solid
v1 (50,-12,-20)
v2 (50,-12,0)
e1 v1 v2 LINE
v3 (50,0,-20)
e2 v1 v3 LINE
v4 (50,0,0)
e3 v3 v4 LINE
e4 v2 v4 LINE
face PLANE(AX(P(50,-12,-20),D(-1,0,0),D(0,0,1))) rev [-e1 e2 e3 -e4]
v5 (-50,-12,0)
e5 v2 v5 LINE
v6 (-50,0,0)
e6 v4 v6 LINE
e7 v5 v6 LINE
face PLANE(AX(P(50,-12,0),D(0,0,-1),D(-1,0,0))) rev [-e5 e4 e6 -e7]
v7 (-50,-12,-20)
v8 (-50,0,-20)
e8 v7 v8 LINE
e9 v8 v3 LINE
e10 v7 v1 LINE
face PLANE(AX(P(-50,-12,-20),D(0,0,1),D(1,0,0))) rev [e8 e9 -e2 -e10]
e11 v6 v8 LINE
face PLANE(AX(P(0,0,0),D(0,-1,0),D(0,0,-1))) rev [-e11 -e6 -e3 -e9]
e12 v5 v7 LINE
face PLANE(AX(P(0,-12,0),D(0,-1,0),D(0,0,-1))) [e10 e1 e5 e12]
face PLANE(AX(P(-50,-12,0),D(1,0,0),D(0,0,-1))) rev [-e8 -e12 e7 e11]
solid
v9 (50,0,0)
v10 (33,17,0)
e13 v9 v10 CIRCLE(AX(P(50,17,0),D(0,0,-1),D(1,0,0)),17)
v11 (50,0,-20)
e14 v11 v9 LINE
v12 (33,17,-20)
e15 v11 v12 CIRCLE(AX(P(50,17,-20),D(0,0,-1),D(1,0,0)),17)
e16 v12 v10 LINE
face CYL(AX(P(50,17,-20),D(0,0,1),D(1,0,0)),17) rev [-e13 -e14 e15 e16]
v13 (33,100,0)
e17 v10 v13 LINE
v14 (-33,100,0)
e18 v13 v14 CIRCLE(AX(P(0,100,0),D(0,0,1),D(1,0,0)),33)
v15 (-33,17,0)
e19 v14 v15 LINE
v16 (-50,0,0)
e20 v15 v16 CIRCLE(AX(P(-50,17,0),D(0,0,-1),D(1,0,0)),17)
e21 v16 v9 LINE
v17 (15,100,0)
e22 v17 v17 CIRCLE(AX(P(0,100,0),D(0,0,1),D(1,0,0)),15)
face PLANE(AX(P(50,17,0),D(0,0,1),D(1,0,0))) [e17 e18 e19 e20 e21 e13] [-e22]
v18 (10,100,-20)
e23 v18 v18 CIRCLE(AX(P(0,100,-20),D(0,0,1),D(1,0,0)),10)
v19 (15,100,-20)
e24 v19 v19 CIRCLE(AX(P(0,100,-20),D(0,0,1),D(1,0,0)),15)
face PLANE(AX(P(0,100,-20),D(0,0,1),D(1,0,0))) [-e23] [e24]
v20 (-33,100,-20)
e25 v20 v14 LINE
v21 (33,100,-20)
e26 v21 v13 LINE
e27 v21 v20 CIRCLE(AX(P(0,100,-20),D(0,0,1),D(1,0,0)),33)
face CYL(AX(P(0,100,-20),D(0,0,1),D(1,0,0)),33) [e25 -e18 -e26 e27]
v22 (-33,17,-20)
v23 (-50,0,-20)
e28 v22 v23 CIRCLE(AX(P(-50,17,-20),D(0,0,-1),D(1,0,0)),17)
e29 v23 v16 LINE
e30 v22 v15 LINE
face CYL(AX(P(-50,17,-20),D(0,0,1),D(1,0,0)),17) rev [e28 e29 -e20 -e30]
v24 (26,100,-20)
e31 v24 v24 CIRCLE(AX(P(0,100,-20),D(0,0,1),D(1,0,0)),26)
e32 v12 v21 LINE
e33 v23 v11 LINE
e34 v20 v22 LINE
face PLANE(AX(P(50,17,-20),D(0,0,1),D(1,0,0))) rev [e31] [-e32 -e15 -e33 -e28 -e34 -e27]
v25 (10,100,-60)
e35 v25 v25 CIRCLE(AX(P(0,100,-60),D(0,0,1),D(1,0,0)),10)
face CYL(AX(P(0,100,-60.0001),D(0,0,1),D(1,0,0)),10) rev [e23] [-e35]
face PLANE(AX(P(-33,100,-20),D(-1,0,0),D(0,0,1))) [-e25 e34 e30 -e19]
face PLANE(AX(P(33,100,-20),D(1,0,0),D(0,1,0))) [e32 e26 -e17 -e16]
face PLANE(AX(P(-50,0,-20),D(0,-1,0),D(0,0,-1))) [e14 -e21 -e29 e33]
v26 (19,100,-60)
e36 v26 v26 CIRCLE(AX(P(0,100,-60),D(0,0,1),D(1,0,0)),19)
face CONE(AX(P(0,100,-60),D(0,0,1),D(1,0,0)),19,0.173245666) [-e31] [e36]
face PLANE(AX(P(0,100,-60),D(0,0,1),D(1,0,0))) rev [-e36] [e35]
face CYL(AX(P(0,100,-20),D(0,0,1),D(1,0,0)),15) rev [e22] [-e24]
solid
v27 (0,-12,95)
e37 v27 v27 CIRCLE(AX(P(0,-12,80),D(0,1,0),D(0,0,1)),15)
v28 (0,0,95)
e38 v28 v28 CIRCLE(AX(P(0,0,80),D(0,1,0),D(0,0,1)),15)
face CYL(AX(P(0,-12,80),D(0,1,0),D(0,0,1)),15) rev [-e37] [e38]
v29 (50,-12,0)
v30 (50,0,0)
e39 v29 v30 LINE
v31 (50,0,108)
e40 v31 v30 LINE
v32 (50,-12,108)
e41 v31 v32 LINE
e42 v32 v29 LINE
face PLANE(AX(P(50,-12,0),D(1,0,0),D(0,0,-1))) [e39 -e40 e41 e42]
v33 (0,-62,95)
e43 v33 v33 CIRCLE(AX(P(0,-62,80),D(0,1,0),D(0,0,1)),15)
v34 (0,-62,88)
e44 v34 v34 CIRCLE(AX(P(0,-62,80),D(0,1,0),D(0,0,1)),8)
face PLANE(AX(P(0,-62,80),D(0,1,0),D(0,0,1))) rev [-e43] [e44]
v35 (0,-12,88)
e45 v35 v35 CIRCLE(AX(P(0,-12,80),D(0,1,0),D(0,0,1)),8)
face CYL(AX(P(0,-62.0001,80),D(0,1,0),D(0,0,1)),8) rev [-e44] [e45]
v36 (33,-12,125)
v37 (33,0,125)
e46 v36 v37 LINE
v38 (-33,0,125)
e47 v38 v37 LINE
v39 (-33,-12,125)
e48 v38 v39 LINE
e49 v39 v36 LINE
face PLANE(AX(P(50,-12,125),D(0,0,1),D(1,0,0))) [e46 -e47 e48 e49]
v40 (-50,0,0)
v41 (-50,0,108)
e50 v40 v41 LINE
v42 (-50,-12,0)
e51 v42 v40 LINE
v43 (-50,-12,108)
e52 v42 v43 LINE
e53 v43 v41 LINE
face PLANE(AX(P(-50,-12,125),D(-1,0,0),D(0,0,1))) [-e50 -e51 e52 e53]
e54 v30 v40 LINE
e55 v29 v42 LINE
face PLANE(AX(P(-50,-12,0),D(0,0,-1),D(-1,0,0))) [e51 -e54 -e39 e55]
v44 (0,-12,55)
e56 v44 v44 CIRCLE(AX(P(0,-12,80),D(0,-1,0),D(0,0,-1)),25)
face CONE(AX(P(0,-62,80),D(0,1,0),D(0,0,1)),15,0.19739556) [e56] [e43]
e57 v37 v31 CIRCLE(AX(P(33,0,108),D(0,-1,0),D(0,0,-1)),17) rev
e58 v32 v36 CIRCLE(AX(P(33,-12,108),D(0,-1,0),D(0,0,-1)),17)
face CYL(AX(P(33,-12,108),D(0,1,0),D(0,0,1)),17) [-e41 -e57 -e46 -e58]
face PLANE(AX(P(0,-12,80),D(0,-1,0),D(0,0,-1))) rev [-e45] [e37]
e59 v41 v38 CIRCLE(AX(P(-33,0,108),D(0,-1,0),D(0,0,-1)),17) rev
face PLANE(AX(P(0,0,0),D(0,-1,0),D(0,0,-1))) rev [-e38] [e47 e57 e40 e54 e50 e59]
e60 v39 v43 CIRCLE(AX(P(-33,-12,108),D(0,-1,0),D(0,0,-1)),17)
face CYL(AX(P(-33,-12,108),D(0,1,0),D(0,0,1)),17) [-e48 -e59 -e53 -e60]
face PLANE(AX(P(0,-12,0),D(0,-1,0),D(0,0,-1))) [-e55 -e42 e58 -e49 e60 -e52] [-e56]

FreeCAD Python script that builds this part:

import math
import FreeCAD as App
import Part
import Sketcher


def edges_at(feature, points):
    """Names of the edges that pass closest to the given points."""
    edges = feature.Shape.Edges
    near = lambda p: min(range(len(edges)), key=lambda i: edges[i].distToShape(Part.Vertex(*p))[0])
    return sorted({f"Edge{near(p) + 1}" for p in points})

doc = App.newDocument("Part")
body = doc.addObject("PartDesign::Body", "Body")

sketch1 = doc.addObject("Sketcher::SketchObject", "Sketch")
body.addObject(sketch1)
sketch1.AttachmentSupport = (doc.XY_Plane, [""])
sketch1.MapMode = "FlatFace"
sketch1.addGeometry([
    Part.LineSegment(App.Vector(-50, 0, 0), App.Vector(50, 0, 0)),
    Part.ArcOfCircle(Part.Circle(App.Vector(50, 17, 0), App.Vector(0, 0, 1), 17), math.radians(-180), math.radians(-90)),
    Part.LineSegment(App.Vector(33, 17, 0), App.Vector(33, 100, 0)),
    Part.ArcOfCircle(Part.Circle(App.Vector(0, 100, 0), App.Vector(0, 0, 1), 33), math.radians(0), math.radians(180)),
    Part.LineSegment(App.Vector(-33, 100, 0), App.Vector(-33, 17, 0)),
    Part.ArcOfCircle(Part.Circle(App.Vector(-50, 17, 0), App.Vector(0, 0, 1), 17), math.radians(-90), math.radians(0)),
    Part.Circle(App.Vector(0, 100, 0), App.Vector(0, 0, 1), 15),
], False)
sketch1.addConstraint([
    Sketcher.Constraint("Tangent", 0, 2, 1, 2),
    Sketcher.Constraint("Tangent", 1, 1, 2, 1),
    Sketcher.Constraint("Tangent", 2, 2, 3, 1),
    Sketcher.Constraint("Tangent", 3, 2, 4, 1),
    Sketcher.Constraint("Tangent", 4, 2, 5, 2),
    Sketcher.Constraint("Tangent", 5, 1, 0, 1),
    Sketcher.Constraint("Horizontal", 0),
    Sketcher.Constraint("Vertical", 2),
    Sketcher.Constraint("Vertical", 4),
    Sketcher.Constraint("Coincident", 6, 3, 3, 3),
    Sketcher.Constraint("Equal", 1, 5),
    Sketcher.Constraint("Symmetric", 0, 2, 5, 1, -1, 1),
    Sketcher.Constraint("Diameter", 6, 30.0),
    Sketcher.Constraint("Radius", 1, 17.0),
    Sketcher.Constraint("Radius", 3, 33.0),
    Sketcher.Constraint("DistanceY", 2, 1, 2, 2, 83.0),
])
pad1 = doc.addObject("PartDesign::Pad", "Pad")
body.addObject(pad1)
pad1.Profile = sketch1
pad1.Length = 20
pad1.Reversed = True

sketch2 = doc.addObject("Sketcher::SketchObject", "Sketch001")
body.addObject(sketch2)
sketch2.AttachmentSupport = (doc.XY_Plane, [""])
sketch2.MapMode = "FlatFace"
sketch2.AttachmentOffset = App.Placement(App.Vector(0, 0, -60), App.Rotation())
sketch2.addGeometry(Part.Circle(App.Vector(0, 100, 0), App.Vector(0, 0, 1), 19), False)
sketch2.addConstraint([
    Sketcher.Constraint("PointOnObject", 0, 3, -2),
    Sketcher.Constraint("Diameter", 0, 38.0),
    Sketcher.Constraint("DistanceY", -1, 1, 0, 3, 100.0),
])

sketch3 = doc.addObject("Sketcher::SketchObject", "Sketch002")
body.addObject(sketch3)
sketch3.AttachmentSupport = (doc.XY_Plane, [""])
sketch3.MapMode = "FlatFace"
sketch3.AttachmentOffset = App.Placement(App.Vector(0, 0, -20), App.Rotation())
sketch3.addGeometry(Part.Circle(App.Vector(0, 100, 0), App.Vector(0, 0, 1), 26), False)
sketch3.addConstraint([
    Sketcher.Constraint("PointOnObject", 0, 3, -2),
    Sketcher.Constraint("Diameter", 0, 52.0),
    Sketcher.Constraint("DistanceY", -1, 1, 0, 3, 100.0),
])

additiveloft = doc.addObject("PartDesign::AdditiveLoft", "AdditiveLoft")
body.addObject(additiveloft)
additiveloft.Profile = sketch2
additiveloft.Sections = [sketch3]

sketch4 = doc.addObject("Sketcher::SketchObject", "Sketch003")
body.addObject(sketch4)
sketch4.AttachmentSupport = (doc.XY_Plane, [""])
sketch4.MapMode = "FlatFace"
sketch4.AttachmentOffset = App.Placement(App.Vector(0, 0, -20), App.Rotation())
sketch4.addGeometry(Part.Circle(App.Vector(0, 100, 0), App.Vector(0, 0, 1), 10), False)
sketch4.addConstraint([
    Sketcher.Constraint("PointOnObject", 0, 3, -2),
    Sketcher.Constraint("Diameter", 0, 20.0),
    Sketcher.Constraint("DistanceY", -1, 1, 0, 3, 100.0),
])
pocket1 = doc.addObject("PartDesign::Pocket", "Pocket")
body.addObject(pocket1)
pocket1.Profile = sketch4
pocket1.Type = "ThroughAll"
body2 = doc.addObject("PartDesign::Body", "Body001")

sketch5 = doc.addObject("Sketcher::SketchObject", "Sketch004")
body2.addObject(sketch5)
sketch5.AttachmentSupport = (doc.getObject("XZ_Plane001"), [""])
sketch5.MapMode = "FlatFace"
sketch5.addGeometry([
    Part.LineSegment(App.Vector(-50, 0, 0), App.Vector(-50, 125, 0)),
    Part.LineSegment(App.Vector(-50, 125, 0), App.Vector(50, 125, 0)),
    Part.LineSegment(App.Vector(50, 125, 0), App.Vector(50, 0, 0)),
    Part.LineSegment(App.Vector(50, 0, 0), App.Vector(-50, 0, 0)),
    Part.Circle(App.Vector(0, 80, 0), App.Vector(0, 0, 1), 15),
], False)
sketch5.addConstraint([
    Sketcher.Constraint("Coincident", 0, 2, 1, 1),
    Sketcher.Constraint("Coincident", 1, 2, 2, 1),
    Sketcher.Constraint("Coincident", 2, 2, 3, 1),
    Sketcher.Constraint("Coincident", 3, 2, 0, 1),
    Sketcher.Constraint("Vertical", 0),
    Sketcher.Constraint("Horizontal", 1),
    Sketcher.Constraint("Vertical", 2),
    Sketcher.Constraint("Horizontal", 3),
    Sketcher.Constraint("Symmetric", 2, 2, 3, 2, -1, 1),
    Sketcher.Constraint("PointOnObject", 4, 3, -2),
    Sketcher.Constraint("Diameter", 4, 30.0),
    Sketcher.Constraint("DistanceX", 1, 1, 1, 2, 100.0),
    Sketcher.Constraint("DistanceY", 0, 1, 0, 2, 125.0),
    Sketcher.Constraint("DistanceY", -1, 1, 4, 3, 80.0),
])
pad2 = doc.addObject("PartDesign::Pad", "Pad001")
body2.addObject(pad2)
pad2.Profile = sketch5
pad2.Length = 12
doc.recompute()

fillet = doc.addObject("PartDesign::Fillet", "Fillet")
body2.addObject(fillet)
fillet.Base = (pad2, edges_at(pad2, [(50, -6, 125), (-50, -6, 125)]))
fillet.Radius = 17

sketch6 = doc.addObject("Sketcher::SketchObject", "Sketch005")
body2.addObject(sketch6)
sketch6.AttachmentSupport = (doc.getObject("XZ_Plane001"), [""])
sketch6.MapMode = "FlatFace"
sketch6.AttachmentOffset = App.Placement(App.Vector(0, 0, 12), App.Rotation())
sketch6.addGeometry(Part.Circle(App.Vector(0, 80, 0), App.Vector(0, 0, 1), 25), False)
sketch6.addConstraint([
    Sketcher.Constraint("PointOnObject", 0, 3, -2),
    Sketcher.Constraint("Diameter", 0, 50.0),
    Sketcher.Constraint("DistanceY", -1, 1, 0, 3, 80.0),
])

sketch7 = doc.addObject("Sketcher::SketchObject", "Sketch006")
body2.addObject(sketch7)
sketch7.AttachmentSupport = (doc.getObject("XZ_Plane001"), [""])
sketch7.MapMode = "FlatFace"
sketch7.AttachmentOffset = App.Placement(App.Vector(0, 0, 62), App.Rotation())
sketch7.addGeometry(Part.Circle(App.Vector(0, 80, 0), App.Vector(0, 0, 1), 15), False)
sketch7.addConstraint([
    Sketcher.Constraint("PointOnObject", 0, 3, -2),
    Sketcher.Constraint("Diameter", 0, 30.0),
    Sketcher.Constraint("DistanceY", -1, 1, 0, 3, 80.0),
])

additiveloft2 = doc.addObject("PartDesign::AdditiveLoft", "AdditiveLoft001")
body2.addObject(additiveloft2)
additiveloft2.Profile = sketch6
additiveloft2.Sections = [sketch7]

sketch8 = doc.addObject("Sketcher::SketchObject", "Sketch007")
body2.addObject(sketch8)
sketch8.AttachmentSupport = (doc.getObject("XZ_Plane001"), [""])
sketch8.MapMode = "FlatFace"
sketch8.AttachmentOffset = App.Placement(App.Vector(0, 0, 12), App.Rotation())
sketch8.addGeometry(Part.Circle(App.Vector(0, 80, 0), App.Vector(0, 0, 1), 8), False)
sketch8.addConstraint([
    Sketcher.Constraint("PointOnObject", 0, 3, -2),
    Sketcher.Constraint("Diameter", 0, 16.0),
    Sketcher.Constraint("DistanceY", -1, 1, 0, 3, 80.0),
])
pocket2 = doc.addObject("PartDesign::Pocket", "Pocket001")
body2.addObject(pocket2)
pocket2.Profile = sketch8
pocket2.Type = "ThroughAll"
pocket2.Reversed = True
body3 = doc.addObject("PartDesign::Body", "Body002")

sketch9 = doc.addObject("Sketcher::SketchObject", "Sketch008")
body3.addObject(sketch9)
sketch9.AttachmentSupport = (doc.getObject("XZ_Plane002"), [""])
sketch9.MapMode = "FlatFace"
sketch9.addGeometry([
    Part.LineSegment(App.Vector(-50, 0, 0), App.Vector(-50, -20, 0)),
    Part.LineSegment(App.Vector(-50, -20, 0), App.Vector(50, -20, 0)),
    Part.LineSegment(App.Vector(50, -20, 0), App.Vector(50, 0, 0)),
    Part.LineSegment(App.Vector(50, 0, 0), App.Vector(-50, 0, 0)),
], False)
sketch9.addConstraint([
    Sketcher.Constraint("Coincident", 0, 2, 1, 1),
    Sketcher.Constraint("Coincident", 1, 2, 2, 1),
    Sketcher.Constraint("Coincident", 2, 2, 3, 1),
    Sketcher.Constraint("Coincident", 3, 2, 0, 1),
    Sketcher.Constraint("Vertical", 0),
    Sketcher.Constraint("Horizontal", 1),
    Sketcher.Constraint("Vertical", 2),
    Sketcher.Constraint("Horizontal", 3),
    Sketcher.Constraint("Symmetric", 2, 2, 3, 2, -1, 1),
    Sketcher.Constraint("DistanceX", 1, 1, 1, 2, 100.0),
    Sketcher.Constraint("DistanceY", 0, 2, 0, 1, 20.0),
])
pad3 = doc.addObject("PartDesign::Pad", "Pad002")
body3.addObject(pad3)
pad3.Profile = sketch9
pad3.Length = 12

doc.recompute()
